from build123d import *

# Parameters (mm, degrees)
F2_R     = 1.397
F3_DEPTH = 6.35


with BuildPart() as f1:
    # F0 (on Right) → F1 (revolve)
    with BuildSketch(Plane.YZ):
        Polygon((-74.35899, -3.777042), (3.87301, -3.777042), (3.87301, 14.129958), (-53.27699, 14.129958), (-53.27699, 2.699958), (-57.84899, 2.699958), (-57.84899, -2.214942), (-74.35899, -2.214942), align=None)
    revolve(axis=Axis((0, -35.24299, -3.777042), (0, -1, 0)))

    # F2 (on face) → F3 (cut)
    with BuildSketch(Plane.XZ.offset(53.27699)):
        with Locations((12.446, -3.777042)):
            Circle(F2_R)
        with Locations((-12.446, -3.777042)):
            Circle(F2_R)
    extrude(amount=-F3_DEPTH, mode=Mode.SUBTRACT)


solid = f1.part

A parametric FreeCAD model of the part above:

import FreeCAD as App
import Part
import Sketcher

V = App.Vector
Q = App.Units.Quantity

doc = App.newDocument("Part")
body = doc.addObject("PartDesign::Body", "Body")

# Sketch on YZ plane
sketch1 = doc.addObject("Sketcher::SketchObject", "Sketch")
body.addObject(sketch1)
sketch1.AttachmentSupport = (doc.YZ_Plane, [""])
sketch1.MapMode = "FlatFace"
sketch1.addGeometry(Part.LineSegment(V(-74.4, -3.8, 0), V(3.9, -3.8, 0)), False)
sketch1.addGeometry(Part.LineSegment(V(3.9, -3.8, 0), V(3.9, 14.1, 0)), False)
sketch1.addGeometry(Part.LineSegment(V(3.9, 14.1, 0), V(-53.3, 14.1, 0)), False)
sketch1.addGeometry(Part.LineSegment(V(-53.3, 14.1, 0), V(-53.3, 2.7, 0)), False)
sketch1.addGeometry(Part.LineSegment(V(-53.3, 2.7, 0), V(-57.8, 2.7, 0)), False)
sketch1.addGeometry(Part.LineSegment(V(-57.8, 2.7, 0), V(-57.8, -2.2, 0)), False)
sketch1.addGeometry(Part.LineSegment(V(-57.8, -2.2, 0), V(-74.4, -2.2, 0)), False)
sketch1.addGeometry(Part.LineSegment(V(-74.4, -2.2, 0), V(-74.4, -3.8, 0)), False)
sketch1.addGeometry(Part.LineSegment(V(3.9, -3.8, 0), V(-74.4, -3.8, 0)), True)  # axis
sketch1.addConstraint(Sketcher.Constraint("Coincident", 0, 2, 1, 1))
sketch1.addConstraint(Sketcher.Constraint("Coincident", 1, 2, 2, 1))
sketch1.addConstraint(Sketcher.Constraint("Coincident", 2, 2, 3, 1))
sketch1.addConstraint(Sketcher.Constraint("Coincident", 3, 2, 4, 1))
sketch1.addConstraint(Sketcher.Constraint("Coincident", 4, 2, 5, 1))
sketch1.addConstraint(Sketcher.Constraint("Coincident", 5, 2, 6, 1))
sketch1.addConstraint(Sketcher.Constraint("Coincident", 6, 2, 7, 1))
sketch1.addConstraint(Sketcher.Constraint("Coincident", 7, 2, 0, 1))
sketch1.addConstraint(Sketcher.Constraint("Horizontal", 0))
sketch1.addConstraint(Sketcher.Constraint("Vertical", 1))
sketch1.addConstraint(Sketcher.Constraint("Horizontal", 2))
sketch1.addConstraint(Sketcher.Constraint("Vertical", 3))
sketch1.addConstraint(Sketcher.Constraint("Horizontal", 4))
sketch1.addConstraint(Sketcher.Constraint("Vertical", 5))
sketch1.addConstraint(Sketcher.Constraint("Horizontal", 6))
sketch1.addConstraint(Sketcher.Constraint("Vertical", 7))
sketch1.addConstraint(Sketcher.Constraint("Horizontal", 8))
sketch1.addConstraint(Sketcher.Constraint("Coincident", 8, 1, 0, 2))
sketch1.addConstraint(Sketcher.Constraint("Vertical", 6, 2, 8, 2))
sketch1.addConstraint(Sketcher.Constraint("DistanceX", 0, 1, 0, 2, Q("3.08 in")))
sketch1.addConstraint(Sketcher.Constraint("DistanceX", 2, 2, 2, 1, Q("2.25 in")))
sketch1.addConstraint(Sketcher.Constraint("DistanceX", 4, 2, 4, 1, Q("0.18 in")))
sketch1.addConstraint(Sketcher.Constraint("DistanceY", 3, 2, 3, 1, Q("0.45 in")))
sketch1.addConstraint(Sketcher.Constraint("DistanceY", 1, 1, 1, 2, Q("0.705 in")))
sketch1.addConstraint(Sketcher.Constraint("DistanceY", 5, 2, 5, 1, Q("0.1935 in")))
sketch1.addConstraint(Sketcher.Constraint("DistanceX", -1, 1, 0, 2, 3.87301))
sketch1.addConstraint(Sketcher.Constraint("DistanceY", 0, 2, -1, 1, 3.777042))
revolution = doc.addObject("PartDesign::Revolution", "Revolution")
body.addObject(revolution)
revolution.Profile = sketch1
revolution.ReferenceAxis = (sketch1, ["Axis0"])
revolution.Angle = 360

# Sketch on XZ plane
sketch2 = doc.addObject("Sketcher::SketchObject", "Sketch001")
body.addObject(sketch2)
sketch2.AttachmentSupport = (doc.XZ_Plane, [""])
sketch2.MapMode = "FlatFace"
sketch2.AttachmentOffset = App.Placement(V(0, 0, 53.27699), App.Rotation())
sketch2.addGeometry(Part.Circle(V(12.4, -3.8, 0), V(0, 0, 1), 1.4), False)
sketch2.addGeometry(Part.Circle(V(-12.4, -3.8, 0), V(0, 0, 1), 1.4), False)
sketch2.addConstraint(Sketcher.Constraint("Equal", 0, 1))
sketch2.addConstraint(Sketcher.Constraint("Symmetric", 0, 3, 1, 3, -2))
sketch2.addConstraint(Sketcher.Constraint("Diameter", 0, Q("0.11 in")))
sketch2.addConstraint(Sketcher.Constraint("DistanceX", -1, 1, 0, 3, Q("0.49 in")))
sketch2.addConstraint(Sketcher.Constraint("DistanceY", 0, 3, -1, 1, 3.777042))
pocket1 = doc.addObject("PartDesign::Pocket", "Pocket")
body.addObject(pocket1)
pocket1.Profile = sketch2
pocket1.Length = Q("0.25 in")

doc.recompute()
